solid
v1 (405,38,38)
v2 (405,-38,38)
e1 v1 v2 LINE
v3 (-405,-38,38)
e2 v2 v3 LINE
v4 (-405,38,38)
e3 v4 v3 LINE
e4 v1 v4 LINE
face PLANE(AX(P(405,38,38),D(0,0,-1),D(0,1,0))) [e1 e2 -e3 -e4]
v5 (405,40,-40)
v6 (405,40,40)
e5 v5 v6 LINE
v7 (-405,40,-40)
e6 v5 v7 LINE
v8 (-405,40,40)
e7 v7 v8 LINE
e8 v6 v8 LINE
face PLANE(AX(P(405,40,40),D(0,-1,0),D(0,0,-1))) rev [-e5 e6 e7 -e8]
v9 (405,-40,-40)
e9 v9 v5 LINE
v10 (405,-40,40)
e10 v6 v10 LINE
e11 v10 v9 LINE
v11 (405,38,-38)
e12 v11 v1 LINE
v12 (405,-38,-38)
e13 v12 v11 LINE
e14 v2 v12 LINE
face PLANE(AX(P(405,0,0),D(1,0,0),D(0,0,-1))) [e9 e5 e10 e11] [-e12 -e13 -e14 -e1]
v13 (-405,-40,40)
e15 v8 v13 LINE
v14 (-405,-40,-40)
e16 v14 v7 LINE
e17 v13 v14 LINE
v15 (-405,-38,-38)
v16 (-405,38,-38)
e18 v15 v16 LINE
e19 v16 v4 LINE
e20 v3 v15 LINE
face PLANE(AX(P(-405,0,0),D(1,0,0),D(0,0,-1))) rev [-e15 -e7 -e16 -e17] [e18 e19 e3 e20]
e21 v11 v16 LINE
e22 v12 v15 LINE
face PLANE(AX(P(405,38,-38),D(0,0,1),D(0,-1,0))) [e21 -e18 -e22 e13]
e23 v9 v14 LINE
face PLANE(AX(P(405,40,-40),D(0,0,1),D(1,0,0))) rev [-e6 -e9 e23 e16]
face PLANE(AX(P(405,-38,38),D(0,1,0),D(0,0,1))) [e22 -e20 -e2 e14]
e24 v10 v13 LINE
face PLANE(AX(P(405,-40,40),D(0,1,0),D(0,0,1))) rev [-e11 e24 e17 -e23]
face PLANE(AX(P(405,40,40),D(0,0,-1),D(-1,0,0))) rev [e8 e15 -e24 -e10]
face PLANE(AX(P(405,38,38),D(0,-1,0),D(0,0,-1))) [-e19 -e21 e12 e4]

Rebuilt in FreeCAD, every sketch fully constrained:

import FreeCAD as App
import Part
import Sketcher
Q = App.Units.Quantity

doc = App.newDocument("Part")
params = doc.addObject("Spreadsheet::Sheet", "Params")
for row, (alias, value) in enumerate([
    ("sketch1_width", "80 mm"),
    ("sketch1_width2", "76 mm"),
    ("pad1_length", "810 mm"),
], start=1):
    params.set(f"A{row}", alias)
    params.set(f"B{row}", "=" + value)
    params.setAlias(f"B{row}", alias)

body = doc.addObject("PartDesign::Body", "Body")

sketch1 = body.newObject("Sketcher::SketchObject", "Sketch")
sketch1.AttachmentSupport = (doc.getObject("YZ_Plane"), [""])
sketch1.MapMode = "FlatFace"
sketch1.addGeometry([
    Part.LineSegment(App.Vector(40, 40, 0), App.Vector(-40, 40, 0)),
    Part.LineSegment(App.Vector(-40, 40, 0), App.Vector(-40, -40, 0)),
    Part.LineSegment(App.Vector(-40, -40, 0), App.Vector(40, -40, 0)),
    Part.LineSegment(App.Vector(40, -40, 0), App.Vector(40, 40, 0)),
    Part.LineSegment(App.Vector(-38, -38, 0), App.Vector(-38, 38, 0)),
    Part.LineSegment(App.Vector(-38, 38, 0), App.Vector(38, 38, 0)),
    Part.LineSegment(App.Vector(38, 38, 0), App.Vector(38, -38, 0)),
    Part.LineSegment(App.Vector(38, -38, 0), App.Vector(-38, -38, 0)),
], False)
sketch1.addConstraint([
    Sketcher.Constraint("Coincident", 0, 2, 1, 1),
    Sketcher.Constraint("Coincident", 1, 2, 2, 1),
    Sketcher.Constraint("Coincident", 2, 2, 3, 1),
    Sketcher.Constraint("Coincident", 3, 2, 0, 1),
    Sketcher.Constraint("Coincident", 4, 2, 5, 1),
    Sketcher.Constraint("Coincident", 5, 2, 6, 1),
    Sketcher.Constraint("Coincident", 6, 2, 7, 1),
    Sketcher.Constraint("Coincident", 7, 2, 4, 1),
    Sketcher.Constraint("Horizontal", 0),
    Sketcher.Constraint("Vertical", 1),
    Sketcher.Constraint("Horizontal", 2),
    Sketcher.Constraint("Vertical", 3),
    Sketcher.Constraint("Vertical", 4),
    Sketcher.Constraint("Horizontal", 5),
    Sketcher.Constraint("Vertical", 6),
    Sketcher.Constraint("Horizontal", 7),
    Sketcher.Constraint("Symmetric", 0, 2, 2, 2, -1, 1),
    Sketcher.Constraint("Symmetric", 4, 2, 6, 2, -1, 1),
    Sketcher.Constraint("Equal", 2, 1),
    Sketcher.Constraint("Equal", 7, 4),
    Sketcher.Constraint("DistanceX", 0, 2, 0, 1, Q("80 mm")),
    Sketcher.Constraint("DistanceX", 5, 1, 5, 2, Q("76 mm")),
])
sketch1.setExpression("Constraints[20]", "Params.sketch1_width")
sketch1.setExpression("Constraints[21]", "Params.sketch1_width2")
pad1 = body.newObject("PartDesign::Pad", "Pad")
pad1.Profile = sketch1
pad1.setExpression("Length", "Params.pad1_length")
pad1.Midplane = True

doc.recompute()
